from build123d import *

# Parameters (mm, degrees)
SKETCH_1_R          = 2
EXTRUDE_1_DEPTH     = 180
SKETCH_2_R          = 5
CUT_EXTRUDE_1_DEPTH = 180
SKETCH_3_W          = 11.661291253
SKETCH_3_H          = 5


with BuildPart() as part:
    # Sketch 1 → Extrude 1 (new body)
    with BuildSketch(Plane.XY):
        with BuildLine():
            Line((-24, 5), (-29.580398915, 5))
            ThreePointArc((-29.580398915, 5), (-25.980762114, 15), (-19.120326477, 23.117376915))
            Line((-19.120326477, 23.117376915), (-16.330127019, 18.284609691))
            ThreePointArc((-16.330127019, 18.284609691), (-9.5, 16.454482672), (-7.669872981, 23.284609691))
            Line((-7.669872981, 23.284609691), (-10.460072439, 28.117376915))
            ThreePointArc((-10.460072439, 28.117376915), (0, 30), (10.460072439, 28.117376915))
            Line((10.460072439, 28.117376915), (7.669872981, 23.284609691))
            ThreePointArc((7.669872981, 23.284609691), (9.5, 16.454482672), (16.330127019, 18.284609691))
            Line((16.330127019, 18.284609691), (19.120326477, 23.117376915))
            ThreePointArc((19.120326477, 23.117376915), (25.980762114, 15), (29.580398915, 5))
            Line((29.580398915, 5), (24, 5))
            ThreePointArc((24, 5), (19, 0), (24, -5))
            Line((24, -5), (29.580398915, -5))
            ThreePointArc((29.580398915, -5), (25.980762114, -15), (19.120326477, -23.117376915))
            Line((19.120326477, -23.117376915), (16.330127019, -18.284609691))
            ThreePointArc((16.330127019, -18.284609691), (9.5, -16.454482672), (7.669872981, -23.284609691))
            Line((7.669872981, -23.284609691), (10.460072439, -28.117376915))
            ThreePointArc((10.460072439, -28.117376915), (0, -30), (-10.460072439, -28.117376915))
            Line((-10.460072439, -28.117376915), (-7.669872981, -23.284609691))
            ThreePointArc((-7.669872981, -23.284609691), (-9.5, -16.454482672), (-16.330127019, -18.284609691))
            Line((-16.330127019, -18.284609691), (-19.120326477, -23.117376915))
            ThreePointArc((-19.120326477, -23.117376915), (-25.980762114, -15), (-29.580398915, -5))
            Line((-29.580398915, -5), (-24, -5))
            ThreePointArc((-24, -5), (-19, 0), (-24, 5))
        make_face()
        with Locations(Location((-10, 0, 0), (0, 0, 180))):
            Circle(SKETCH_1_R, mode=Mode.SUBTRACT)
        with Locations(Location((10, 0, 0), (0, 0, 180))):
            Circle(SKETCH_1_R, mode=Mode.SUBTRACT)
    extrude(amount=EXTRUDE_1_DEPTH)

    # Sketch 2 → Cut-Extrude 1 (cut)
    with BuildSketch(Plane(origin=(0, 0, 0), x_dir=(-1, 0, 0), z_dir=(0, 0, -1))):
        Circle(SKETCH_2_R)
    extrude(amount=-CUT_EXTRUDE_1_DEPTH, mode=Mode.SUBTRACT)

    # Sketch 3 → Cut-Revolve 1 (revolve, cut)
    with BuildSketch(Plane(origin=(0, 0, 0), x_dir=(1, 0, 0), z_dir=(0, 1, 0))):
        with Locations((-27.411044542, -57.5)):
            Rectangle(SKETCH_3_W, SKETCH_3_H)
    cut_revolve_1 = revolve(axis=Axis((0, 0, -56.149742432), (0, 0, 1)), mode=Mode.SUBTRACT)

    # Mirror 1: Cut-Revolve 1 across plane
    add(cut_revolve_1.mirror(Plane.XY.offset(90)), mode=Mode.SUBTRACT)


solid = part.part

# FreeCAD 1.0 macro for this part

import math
import FreeCAD as App
import Part
import Sketcher
Q = App.Units.Quantity


def add_polygon(sketch, points):
    """Adds a closed chain of lines whose ends are joined by coincident constraints."""
    first, n = sketch.GeometryCount, len(points)
    for a, b in zip(points, points[1:] + points[:1]):
        sketch.addGeometry(Part.LineSegment(App.Vector(*a, 0), App.Vector(*b, 0)), False)
    for i in range(n):
        sketch.addConstraint(Sketcher.Constraint("Coincident", first + i, 2, first + (i + 1) % n, 1))

doc = App.newDocument("Part")
params = doc.addObject("Spreadsheet::Sheet", "Params")
for row, (alias, value) in enumerate([
    ("sketch1_diameter", "4 mm"),
    ("sketch1_radius", "5 mm"),
    ("sketch1_radius2", "30 mm"),
    ("pad1_length", "180 mm"),
    ("sketch2_diameter", "10 mm"),
    ("pocket1_length", "180 mm"),
    ("sketch3_height", "5 mm"),
    ("groove_angle", "360 deg"),
], start=1):
    params.set(f"A{row}", alias)
    params.set(f"B{row}", "=" + value)
    params.setAlias(f"B{row}", alias)

body = doc.addObject("PartDesign::Body", "Body")

# Sketch on XY plane
sketch1 = body.newObject("Sketcher::SketchObject", "Sketch")
sketch1.AttachmentSupport = (doc.getObject("XY_Plane"), [""])
sketch1.MapMode = "FlatFace"
sketch1.addGeometry(Part.LineSegment(App.Vector(-29.6, 5, 0), App.Vector(-24, 5, 0)), False)
sketch1.addGeometry(Part.ArcOfCircle(Part.Circle(App.Vector(-24, 0, 0), App.Vector(0, 0, 1), 5), math.radians(-90), math.radians(90)), False)
sketch1.addGeometry(Part.LineSegment(App.Vector(-24, -5, 0), App.Vector(-29.6, -5, 0)), False)
sketch1.addGeometry(Part.ArcOfCircle(Part.Circle(App.Vector(0, 0, 0), App.Vector(0, 0, 1), 30), math.radians(-170), math.radians(-130)), False)
sketch1.addGeometry(Part.LineSegment(App.Vector(-19.1, -23.1, 0), App.Vector(-16.3, -18.3, 0)), False)
sketch1.addGeometry(Part.ArcOfCircle(Part.Circle(App.Vector(-12, -20.8, 0), App.Vector(0, 0, 1), 5), math.radians(-30), math.radians(150)), False)
sketch1.addGeometry(Part.LineSegment(App.Vector(-7.7, -23.3, 0), App.Vector(-10.5, -28.1, 0)), False)
sketch1.addGeometry(Part.ArcOfCircle(Part.Circle(App.Vector(0, 0, 0), App.Vector(0, 0, 1), 30), math.radians(-110), math.radians(-70)), False)
sketch1.addGeometry(Part.LineSegment(App.Vector(10.5, -28.1, 0), App.Vector(7.7, -23.3, 0)), False)
sketch1.addGeometry(Part.ArcOfCircle(Part.Circle(App.Vector(12, -20.8, 0), App.Vector(0, 0, 1), 5), math.radians(30), math.radians(210)), False)
sketch1.addGeometry(Part.LineSegment(App.Vector(16.3, -18.3, 0), App.Vector(19.1, -23.1, 0)), False)
sketch1.addGeometry(Part.ArcOfCircle(Part.Circle(App.Vector(0, 0, 0), App.Vector(0, 0, 1), 30), math.radians(-50), math.radians(-10)), False)
sketch1.addGeometry(Part.LineSegment(App.Vector(29.6, -5, 0), App.Vector(24, -5, 0)), False)
sketch1.addGeometry(Part.ArcOfCircle(Part.Circle(App.Vector(24, 0, 0), App.Vector(0, 0, 1), 5), math.radians(90), math.radians(270)), False)
sketch1.addGeometry(Part.LineSegment(App.Vector(24, 5, 0), App.Vector(29.6, 5, 0)), False)
sketch1.addGeometry(Part.ArcOfCircle(Part.Circle(App.Vector(0, 0, 0), App.Vector(0, 0, 1), 30), math.radians(10), math.radians(50)), False)
sketch1.addGeometry(Part.LineSegment(App.Vector(19.1, 23.1, 0), App.Vector(16.3, 18.3, 0)), False)
sketch1.addGeometry(Part.ArcOfCircle(Part.Circle(App.Vector(12, 20.8, 0), App.Vector(0, 0, 1), 5), math.radians(150), math.radians(330)), False)
sketch1.addGeometry(Part.LineSegment(App.Vector(7.7, 23.3, 0), App.Vector(10.5, 28.1, 0)), False)
sketch1.addGeometry(Part.ArcOfCircle(Part.Circle(App.Vector(0, 0, 0), App.Vector(0, 0, 1), 30), math.radians(70), math.radians(110)), False)
sketch1.addGeometry(Part.LineSegment(App.Vector(-10.5, 28.1, 0), App.Vector(-7.7, 23.3, 0)), False)
sketch1.addGeometry(Part.ArcOfCircle(Part.Circle(App.Vector(-12, 20.8, 0), App.Vector(0, 0, 1), 5), math.radians(-150), math.radians(30)), False)
sketch1.addGeometry(Part.LineSegment(App.Vector(-16.3, 18.3, 0), App.Vector(-19.1, 23.1, 0)), False)
sketch1.addGeometry(Part.ArcOfCircle(Part.Circle(App.Vector(0, 0, 0), App.Vector(0, 0, 1), 30), math.radians(130), math.radians(170)), False)
sketch1.addGeometry(Part.Circle(App.Vector(10, 0, 0), App.Vector(0, 0, 1), 2), False)
sketch1.addGeometry(Part.Circle(App.Vector(-10, 0, 0), App.Vector(0, 0, 1), 2), False)
sketch1.addConstraint(Sketcher.Constraint("Tangent", 0, 2, 1, 2))
sketch1.addConstraint(Sketcher.Constraint("Tangent", 1, 1, 2, 1))
sketch1.addConstraint(Sketcher.Constraint("Coincident", 2, 2, 3, 1))
sketch1.addConstraint(Sketcher.Constraint("Coincident", 3, 2, 4, 1))
sketch1.addConstraint(Sketcher.Constraint("Tangent", 4, 2, 5, 2))
sketch1.addConstraint(Sketcher.Constraint("Tangent", 5, 1, 6, 1))
sketch1.addConstraint(Sketcher.Constraint("Coincident", 6, 2, 7, 1))
sketch1.addConstraint(Sketcher.Constraint("Coincident", 7, 2, 8, 1))
sketch1.addConstraint(Sketcher.Constraint("Tangent", 8, 2, 9, 2))
sketch1.addConstraint(Sketcher.Constraint("Tangent", 9, 1, 10, 1))
sketch1.addConstraint(Sketcher.Constraint("Coincident", 10, 2, 11, 1))
sketch1.addConstraint(Sketcher.Constraint("Coincident", 11, 2, 12, 1))
sketch1.addConstraint(Sketcher.Constraint("Tangent", 12, 2, 13, 2))
sketch1.addConstraint(Sketcher.Constraint("Tangent", 13, 1, 14, 1))
sketch1.addConstraint(Sketcher.Constraint("Coincident", 14, 2, 15, 1))
sketch1.addConstraint(Sketcher.Constraint("Coincident", 15, 2, 16, 1))
sketch1.addConstraint(Sketcher.Constraint("Tangent", 16, 2, 17, 2))
sketch1.addConstraint(Sketcher.Constraint("Tangent", 17, 1, 18, 1))
sketch1.addConstraint(Sketcher.Constraint("Coincident", 18, 2, 19, 1))
sketch1.addConstraint(Sketcher.Constraint("Coincident", 19, 2, 20, 1))
sketch1.addConstraint(Sketcher.Constraint("Tangent", 20, 2, 21, 2))
sketch1.addConstraint(Sketcher.Constraint("Tangent", 21, 1, 22, 1))
sketch1.addConstraint(Sketcher.Constraint("Coincident", 22, 2, 23, 1))
sketch1.addConstraint(Sketcher.Constraint("Coincident", 23, 2, 0, 1))
sketch1.addConstraint(Sketcher.Constraint("Horizontal", 0))
sketch1.addConstraint(Sketcher.Constraint("Horizontal", 2))
sketch1.addConstraint(Sketcher.Constraint("Horizontal", 12))
sketch1.addConstraint(Sketcher.Constraint("Horizontal", 14))
sketch1.addConstraint(Sketcher.Constraint("Coincident", 3, 3, -1, 1))
sketch1.addConstraint(Sketcher.Constraint("Coincident", 7, 3, -1, 1))
sketch1.addConstraint(Sketcher.Constraint("Coincident", 11, 3, -1, 1))
sketch1.addConstraint(Sketcher.Constraint("Coincident", 15, 3, -1, 1))
sketch1.addConstraint(Sketcher.Constraint("Coincident", 19, 3, -1, 1))
sketch1.addConstraint(Sketcher.Constraint("Coincident", 23, 3, -1, 1))
sketch1.addConstraint(Sketcher.Constraint("Equal", 1, 5))
sketch1.addConstraint(Sketcher.Constraint("Equal", 3, 7))
sketch1.addConstraint(Sketcher.Constraint("Equal", 5, 9))
sketch1.addConstraint(Sketcher.Constraint("Equal", 7, 11))
sketch1.addConstraint(Sketcher.Constraint("Equal", 9, 13))
sketch1.addConstraint(Sketcher.Constraint("Equal", 11, 15))
sketch1.addConstraint(Sketcher.Constraint("Equal", 13, 17))
sketch1.addConstraint(Sketcher.Constraint("Equal", 15, 19))
sketch1.addConstraint(Sketcher.Constraint("Equal", 17, 21))
sketch1.addConstraint(Sketcher.Constraint("Equal", 19, 23))
sketch1.addConstraint(Sketcher.Constraint("Equal", 24, 25))
sketch1.addConstraint(Sketcher.Constraint("Symmetric", 1, 3, 13, 3, -1, 1))
sketch1.addConstraint(Sketcher.Constraint("Symmetric", 5, 3, 17, 3, -1, 1))
sketch1.addConstraint(Sketcher.Constraint("Symmetric", 9, 3, 21, 3, -1, 1))
sketch1.addConstraint(Sketcher.Constraint("Symmetric", 24, 3, 25, 3, -1, 1))
sketch1.addConstraint(Sketcher.Constraint("Symmetric", 5, 3, 9, 3, -2))
sketch1.addConstraint(Sketcher.Constraint("PointOnObject", 1, 3, -1))
sketch1.addConstraint(Sketcher.Constraint("PointOnObject", 24, 3, -1))
sketch1.addConstraint(Sketcher.Constraint("Parallel", 4, 6))
sketch1.addConstraint(Sketcher.Constraint("Parallel", 8, 10))
sketch1.addConstraint(Sketcher.Constraint("Parallel", 6, 16))
sketch1.addConstraint(Sketcher.Constraint("Parallel", 16, 18))
sketch1.addConstraint(Sketcher.Constraint("Parallel", 10, 20))
sketch1.addConstraint(Sketcher.Constraint("Parallel", 20, 22))
sketch1.addConstraint(Sketcher.Constraint("Horizontal", 6, 2, 7, 2))
sketch1.addConstraint(Sketcher.Constraint("Equal", 4, 6))
sketch1.addConstraint(Sketcher.Constraint("Diameter", 24, 4.0))
sketch1.addConstraint(Sketcher.Constraint("Radius", 1, 5.0))
sketch1.addConstraint(Sketcher.Constraint("Radius", 3, 30.0))
sketch1.addConstraint(Sketcher.Constraint("Angle", 4, Q("60 deg")))
sketch1.addConstraint(Sketcher.Constraint("DistanceX", 1, 3, -1, 1, 24.0))
sketch1.addConstraint(Sketcher.Constraint("DistanceX", 5, 3, -1, 1, 12.0))
sketch1.addConstraint(Sketcher.Constraint("DistanceX", -1, 1, 24, 3, 10.0))
sketch1.setExpression("Constraints[60]", "Params.sketch1_diameter")
sketch1.setExpression("Constraints[61]", "Params.sketch1_radius")
sketch1.setExpression("Constraints[62]", "Params.sketch1_radius2")
pad1 = body.newObject("PartDesign::Pad", "Pad")
pad1.Profile = sketch1
pad1.setExpression("Length", "Params.pad1_length")

# Sketch on XY plane
sketch2 = body.newObject("Sketcher::SketchObject", "Sketch001")
sketch2.AttachmentSupport = (doc.getObject("XY_Plane"), [""])
sketch2.MapMode = "FlatFace"
sketch2.addGeometry(Part.Circle(App.Vector(0, 0, 0), App.Vector(0, 0, 1), 5), False)
sketch2.addConstraint(Sketcher.Constraint("Coincident", 0, 3, -1, 1))
sketch2.addConstraint(Sketcher.Constraint("Diameter", 0, 10.0))
sketch2.setExpression("Constraints[1]", "Params.sketch2_diameter")
pocket1 = body.newObject("PartDesign::Pocket", "Pocket")
pocket1.Profile = sketch2
pocket1.setExpression("Length", "Params.pocket1_length")
pocket1.Reversed = True

# Sketch on XZ plane
sketch3 = body.newObject("Sketcher::SketchObject", "Sketch002")
sketch3.AttachmentSupport = (doc.getObject("XZ_Plane"), [""])
sketch3.MapMode = "FlatFace"
add_polygon(sketch3, [(-33, 55), (-33, 60), (-22, 60), (-22, 55)])  # lines 0-3
sketch3.addConstraint(Sketcher.Constraint("Vertical", 0))
sketch3.addConstraint(Sketcher.Constraint("Horizontal", 1))
sketch3.addConstraint(Sketcher.Constraint("Vertical", 2))
sketch3.addConstraint(Sketcher.Constraint("Horizontal", 3))
sketch3.addConstraint(Sketcher.Constraint("DistanceY", 0, 1, 0, 2, 5.0))
sketch3.addConstraint(Sketcher.Constraint("DistanceY", -1, 1, 0, 2, 60.0))
sketch3.addConstraint(Sketcher.Constraint("DistanceX", 1, 1, 1, 2, 11.661291))
sketch3.addConstraint(Sketcher.Constraint("DistanceX", 1, 2, -1, 1, 21.580399))
sketch3.setExpression("Constraints[8]", "Params.sketch3_height")
groove = body.newObject("PartDesign::Groove", "Groove")
groove.Profile = sketch3
groove.ReferenceAxis = (sketch3, ["V_Axis"])
groove.setExpression("Angle", "Params.groove_angle")
doc.recompute()

datumplane = body.newObject("PartDesign::Plane", "DatumPlane")
datumplane.AttachmentSupport = (doc.getObject("XY_Plane"), [""])
datumplane.MapMode = "FlatFace"
datumplane.AttachmentOffset = App.Placement(App.Vector(0, 0, 90), App.Rotation())
mirrored = body.newObject("PartDesign::Mirrored", "Mirrored")
mirrored.Originals = [groove]
mirrored.MirrorPlane = (datumplane, [""])
body.Tip = mirrored

doc.recompute()
